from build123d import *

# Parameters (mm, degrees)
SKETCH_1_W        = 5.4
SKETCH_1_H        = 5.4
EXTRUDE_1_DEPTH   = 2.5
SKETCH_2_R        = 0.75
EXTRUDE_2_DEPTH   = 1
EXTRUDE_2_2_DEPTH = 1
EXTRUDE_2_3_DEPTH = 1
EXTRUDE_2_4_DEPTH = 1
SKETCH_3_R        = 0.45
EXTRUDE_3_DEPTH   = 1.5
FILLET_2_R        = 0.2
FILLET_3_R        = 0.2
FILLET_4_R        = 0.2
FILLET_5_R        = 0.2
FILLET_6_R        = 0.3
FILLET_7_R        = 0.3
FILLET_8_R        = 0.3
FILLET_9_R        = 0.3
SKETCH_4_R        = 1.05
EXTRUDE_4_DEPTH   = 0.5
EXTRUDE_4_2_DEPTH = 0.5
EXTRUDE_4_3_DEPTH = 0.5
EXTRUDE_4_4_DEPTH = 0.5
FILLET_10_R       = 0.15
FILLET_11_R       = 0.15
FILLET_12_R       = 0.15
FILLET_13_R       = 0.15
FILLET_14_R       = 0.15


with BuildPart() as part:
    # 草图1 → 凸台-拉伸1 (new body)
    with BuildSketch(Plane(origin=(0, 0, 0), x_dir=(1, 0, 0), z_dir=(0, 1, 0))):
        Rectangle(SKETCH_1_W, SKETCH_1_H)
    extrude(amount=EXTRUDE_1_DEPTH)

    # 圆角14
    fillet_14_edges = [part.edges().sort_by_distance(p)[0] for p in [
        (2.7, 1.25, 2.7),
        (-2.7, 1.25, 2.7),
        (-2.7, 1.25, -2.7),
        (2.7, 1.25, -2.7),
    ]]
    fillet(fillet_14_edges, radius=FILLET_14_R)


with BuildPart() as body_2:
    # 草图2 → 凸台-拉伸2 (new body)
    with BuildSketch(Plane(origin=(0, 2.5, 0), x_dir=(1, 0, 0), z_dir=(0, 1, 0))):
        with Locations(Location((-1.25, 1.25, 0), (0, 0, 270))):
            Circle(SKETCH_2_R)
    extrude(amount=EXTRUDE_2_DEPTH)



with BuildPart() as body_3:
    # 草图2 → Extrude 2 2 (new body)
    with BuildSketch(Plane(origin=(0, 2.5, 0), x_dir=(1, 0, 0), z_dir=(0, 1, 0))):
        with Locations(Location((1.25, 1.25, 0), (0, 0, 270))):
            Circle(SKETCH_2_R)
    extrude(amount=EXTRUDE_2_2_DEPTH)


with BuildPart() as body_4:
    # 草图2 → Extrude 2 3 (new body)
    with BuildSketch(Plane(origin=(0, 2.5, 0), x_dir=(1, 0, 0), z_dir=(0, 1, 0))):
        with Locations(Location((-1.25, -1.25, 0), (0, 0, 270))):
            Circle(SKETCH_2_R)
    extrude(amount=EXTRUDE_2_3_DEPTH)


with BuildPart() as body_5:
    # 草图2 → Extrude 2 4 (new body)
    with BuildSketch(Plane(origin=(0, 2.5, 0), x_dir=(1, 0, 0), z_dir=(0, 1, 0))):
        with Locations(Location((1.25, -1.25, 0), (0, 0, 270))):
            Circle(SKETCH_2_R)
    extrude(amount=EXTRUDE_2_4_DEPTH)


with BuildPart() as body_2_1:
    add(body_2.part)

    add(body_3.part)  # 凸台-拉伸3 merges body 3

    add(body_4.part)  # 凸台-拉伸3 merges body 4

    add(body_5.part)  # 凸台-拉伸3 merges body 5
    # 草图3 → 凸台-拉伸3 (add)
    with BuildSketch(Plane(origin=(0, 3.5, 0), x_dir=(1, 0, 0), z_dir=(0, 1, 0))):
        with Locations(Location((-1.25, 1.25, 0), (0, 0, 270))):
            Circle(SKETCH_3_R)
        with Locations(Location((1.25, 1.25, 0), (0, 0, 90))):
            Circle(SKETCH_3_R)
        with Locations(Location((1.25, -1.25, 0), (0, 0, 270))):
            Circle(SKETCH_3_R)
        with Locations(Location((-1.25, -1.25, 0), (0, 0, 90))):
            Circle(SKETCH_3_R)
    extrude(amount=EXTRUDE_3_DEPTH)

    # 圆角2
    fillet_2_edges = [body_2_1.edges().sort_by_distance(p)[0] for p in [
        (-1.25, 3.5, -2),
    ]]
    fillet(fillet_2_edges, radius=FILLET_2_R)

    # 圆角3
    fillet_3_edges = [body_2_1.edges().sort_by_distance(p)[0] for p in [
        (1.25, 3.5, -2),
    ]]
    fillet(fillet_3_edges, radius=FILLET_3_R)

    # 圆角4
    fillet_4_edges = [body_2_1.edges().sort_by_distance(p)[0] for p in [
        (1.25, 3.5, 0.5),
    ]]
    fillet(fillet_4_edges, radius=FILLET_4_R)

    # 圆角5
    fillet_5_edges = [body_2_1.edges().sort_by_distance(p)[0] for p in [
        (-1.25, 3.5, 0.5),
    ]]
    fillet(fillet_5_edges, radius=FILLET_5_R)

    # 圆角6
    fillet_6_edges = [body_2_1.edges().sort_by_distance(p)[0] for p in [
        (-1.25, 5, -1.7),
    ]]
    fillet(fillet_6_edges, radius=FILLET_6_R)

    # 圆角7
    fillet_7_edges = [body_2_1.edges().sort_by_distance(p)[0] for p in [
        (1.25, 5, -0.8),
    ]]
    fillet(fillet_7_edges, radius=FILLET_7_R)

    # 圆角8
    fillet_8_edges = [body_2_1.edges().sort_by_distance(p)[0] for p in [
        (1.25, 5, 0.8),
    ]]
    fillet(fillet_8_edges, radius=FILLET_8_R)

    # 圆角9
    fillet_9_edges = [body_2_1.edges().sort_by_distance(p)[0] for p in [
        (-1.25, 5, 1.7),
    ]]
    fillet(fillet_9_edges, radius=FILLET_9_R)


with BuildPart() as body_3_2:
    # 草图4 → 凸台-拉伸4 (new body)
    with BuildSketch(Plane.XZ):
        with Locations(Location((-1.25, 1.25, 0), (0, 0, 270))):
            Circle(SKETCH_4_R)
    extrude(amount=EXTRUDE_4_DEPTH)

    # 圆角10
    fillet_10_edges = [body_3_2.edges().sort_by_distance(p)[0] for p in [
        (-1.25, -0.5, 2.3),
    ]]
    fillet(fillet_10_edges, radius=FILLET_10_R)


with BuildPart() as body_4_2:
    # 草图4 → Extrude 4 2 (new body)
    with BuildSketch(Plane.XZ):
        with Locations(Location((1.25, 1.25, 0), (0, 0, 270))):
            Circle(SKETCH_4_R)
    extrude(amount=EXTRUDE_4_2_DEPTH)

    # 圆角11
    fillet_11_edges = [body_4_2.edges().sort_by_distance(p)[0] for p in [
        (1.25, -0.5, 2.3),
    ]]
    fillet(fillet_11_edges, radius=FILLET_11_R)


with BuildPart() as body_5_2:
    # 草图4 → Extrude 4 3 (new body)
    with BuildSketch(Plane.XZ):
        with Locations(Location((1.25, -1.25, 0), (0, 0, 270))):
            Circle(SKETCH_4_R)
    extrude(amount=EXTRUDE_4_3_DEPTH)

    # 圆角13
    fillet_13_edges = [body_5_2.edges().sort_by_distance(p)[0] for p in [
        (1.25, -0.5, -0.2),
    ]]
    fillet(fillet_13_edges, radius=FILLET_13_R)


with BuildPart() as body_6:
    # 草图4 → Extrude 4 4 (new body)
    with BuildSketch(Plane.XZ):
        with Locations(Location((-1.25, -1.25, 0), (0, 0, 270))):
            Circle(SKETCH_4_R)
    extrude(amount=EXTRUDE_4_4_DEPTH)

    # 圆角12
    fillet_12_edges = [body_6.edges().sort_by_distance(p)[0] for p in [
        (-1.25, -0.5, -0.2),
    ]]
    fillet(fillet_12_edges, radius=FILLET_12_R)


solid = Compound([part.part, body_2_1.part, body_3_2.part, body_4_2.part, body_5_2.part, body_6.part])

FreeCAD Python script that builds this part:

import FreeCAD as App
import Part
import Sketcher


def edges_at(feature, points):
    """Names of the edges that pass closest to the given points."""
    edges = feature.Shape.Edges
    near = lambda p: min(range(len(edges)), key=lambda i: edges[i].distToShape(Part.Vertex(*p))[0])
    return sorted({f"Edge{near(p) + 1}" for p in points})

doc = App.newDocument("Part")
body = doc.addObject("PartDesign::Body", "Body")

sketch1 = body.newObject("Sketcher::SketchObject", "Sketch")
sketch1.AttachmentSupport = (doc.getObject("XZ_Plane"), [""])
sketch1.MapMode = "FlatFace"
sketch1.addGeometry([
    Part.LineSegment(App.Vector(-2.7, -2.7, 0), App.Vector(-2.7, 2.7, 0)),
    Part.LineSegment(App.Vector(-2.7, 2.7, 0), App.Vector(2.7, 2.7, 0)),
    Part.LineSegment(App.Vector(2.7, 2.7, 0), App.Vector(2.7, -2.7, 0)),
    Part.LineSegment(App.Vector(2.7, -2.7, 0), App.Vector(-2.7, -2.7, 0)),
], False)
sketch1.addConstraint([
    Sketcher.Constraint("Coincident", 0, 2, 1, 1),
    Sketcher.Constraint("Coincident", 1, 2, 2, 1),
    Sketcher.Constraint("Coincident", 2, 2, 3, 1),
    Sketcher.Constraint("Coincident", 3, 2, 0, 1),
    Sketcher.Constraint("Vertical", 0),
    Sketcher.Constraint("Horizontal", 1),
    Sketcher.Constraint("Vertical", 2),
    Sketcher.Constraint("Horizontal", 3),
    Sketcher.Constraint("Symmetric", 0, 2, 2, 2, -1, 1),
    Sketcher.Constraint("Equal", 3, 0),
    Sketcher.Constraint("DistanceX", 1, 1, 1, 2, 5.4),
])
pad1 = body.newObject("PartDesign::Pad", "Pad")
pad1.Profile = sketch1
pad1.Length = 2.5
pad1.Reversed = True
doc.recompute()

fillet = body.newObject("PartDesign::Fillet", "Fillet")
fillet.Base = (pad1, edges_at(pad1, [
    (2.7, 1.25, 2.7),
    (-2.7, 1.25, 2.7),
    (-2.7, 1.25, -2.7),
    (2.7, 1.25, -2.7),
]))
fillet.Radius = 0.15
body2 = doc.addObject("PartDesign::Body", "Body001")

sketch2 = body2.newObject("Sketcher::SketchObject", "Sketch001")
sketch2.AttachmentSupport = (doc.getObject("XZ_Plane001"), [""])
sketch2.MapMode = "FlatFace"
sketch2.AttachmentOffset = App.Placement(App.Vector(0, 0, -2.5), App.Rotation())
sketch2.addGeometry(Part.Circle(App.Vector(-1.25, -1.25, 0), App.Vector(0, 0, 1), 0.75), False)
sketch2.addConstraint([
    Sketcher.Constraint("Diameter", 0, 1.5),
    Sketcher.Constraint("DistanceX", 0, 3, -1, 1, 1.25),
    Sketcher.Constraint("DistanceY", 0, 3, -1, 1, 1.25),
])
pad2 = body2.newObject("PartDesign::Pad", "Pad001")
pad2.Profile = sketch2
pad2.Length = 1
pad2.Reversed = True
body3 = doc.addObject("PartDesign::Body", "Body002")

sketch3 = body3.newObject("Sketcher::SketchObject", "Sketch002")
sketch3.AttachmentSupport = (doc.getObject("XZ_Plane002"), [""])
sketch3.MapMode = "FlatFace"
sketch3.AttachmentOffset = App.Placement(App.Vector(0, 0, -2.5), App.Rotation())
sketch3.addGeometry(Part.Circle(App.Vector(1.25, -1.25, 0), App.Vector(0, 0, 1), 0.75), False)
sketch3.addConstraint([
    Sketcher.Constraint("Diameter", 0, 1.5),
    Sketcher.Constraint("DistanceX", -1, 1, 0, 3, 1.25),
    Sketcher.Constraint("DistanceY", 0, 3, -1, 1, 1.25),
])
pad3 = body3.newObject("PartDesign::Pad", "Pad002")
pad3.Profile = sketch3
pad3.Length = 1
pad3.Reversed = True
body4 = doc.addObject("PartDesign::Body", "Body003")

sketch4 = body4.newObject("Sketcher::SketchObject", "Sketch003")
sketch4.AttachmentSupport = (doc.getObject("XZ_Plane003"), [""])
sketch4.MapMode = "FlatFace"
sketch4.AttachmentOffset = App.Placement(App.Vector(0, 0, -2.5), App.Rotation())
sketch4.addGeometry(Part.Circle(App.Vector(-1.25, 1.25, 0), App.Vector(0, 0, 1), 0.75), False)
sketch4.addConstraint([
    Sketcher.Constraint("Diameter", 0, 1.5),
    Sketcher.Constraint("DistanceX", 0, 3, -1, 1, 1.25),
    Sketcher.Constraint("DistanceY", -1, 1, 0, 3, 1.25),
])
pad4 = body4.newObject("PartDesign::Pad", "Pad003")
pad4.Profile = sketch4
pad4.Length = 1
pad4.Reversed = True
body5 = doc.addObject("PartDesign::Body", "Body004")

sketch5 = body5.newObject("Sketcher::SketchObject", "Sketch004")
sketch5.AttachmentSupport = (doc.getObject("XZ_Plane004"), [""])
sketch5.MapMode = "FlatFace"
sketch5.AttachmentOffset = App.Placement(App.Vector(0, 0, -2.5), App.Rotation())
sketch5.addGeometry(Part.Circle(App.Vector(1.25, 1.25, 0), App.Vector(0, 0, 1), 0.75), False)
sketch5.addConstraint([
    Sketcher.Constraint("Diameter", 0, 1.5),
    Sketcher.Constraint("DistanceX", -1, 1, 0, 3, 1.25),
    Sketcher.Constraint("DistanceY", -1, 1, 0, 3, 1.25),
])
pad5 = body5.newObject("PartDesign::Pad", "Pad004")
pad5.Profile = sketch5
pad5.Length = 1
pad5.Reversed = True
body2.AllowCompound = True
doc.recompute()

boolean = body2.newObject("PartDesign::Boolean", "Boolean")
boolean.Type = "Fuse"
boolean.addObjects([body3])
doc.recompute()

boolean2 = body2.newObject("PartDesign::Boolean", "Boolean001")
boolean2.Type = "Fuse"
boolean2.addObjects([body4])
doc.recompute()

boolean3 = body2.newObject("PartDesign::Boolean", "Boolean002")
boolean3.Type = "Fuse"
boolean3.addObjects([body5])

sketch6 = body2.newObject("Sketcher::SketchObject", "Sketch005")
sketch6.AttachmentSupport = (doc.getObject("XZ_Plane001"), [""])
sketch6.MapMode = "FlatFace"
sketch6.AttachmentOffset = App.Placement(App.Vector(0, 0, -3.5), App.Rotation())
sketch6.addGeometry([
    Part.Circle(App.Vector(-1.25, -1.25, 0), App.Vector(0, 0, 1), 0.45),
    Part.Circle(App.Vector(1.25, -1.25, 0), App.Vector(0, 0, 1), 0.45),
    Part.Circle(App.Vector(1.25, 1.25, 0), App.Vector(0, 0, 1), 0.45),
    Part.Circle(App.Vector(-1.25, 1.25, 0), App.Vector(0, 0, 1), 0.45),
], False)
sketch6.addConstraint([
    Sketcher.Constraint("Equal", 0, 1),
    Sketcher.Constraint("Equal", 1, 2),
    Sketcher.Constraint("Equal", 2, 3),
    Sketcher.Constraint("Symmetric", 0, 3, 2, 3, -1, 1),
    Sketcher.Constraint("Symmetric", 1, 3, 3, 3, -1, 1),
    Sketcher.Constraint("Symmetric", 0, 3, 1, 3, -2),
    Sketcher.Constraint("Diameter", 0, 0.9),
    Sketcher.Constraint("DistanceX", 0, 3, 1, 3, 2.5),
    Sketcher.Constraint("DistanceY", 1, 3, 2, 3, 2.5),
])
pad6 = body2.newObject("PartDesign::Pad", "Pad005")
pad6.Profile = sketch6
pad6.Length = 1.5
pad6.Reversed = True
doc.recompute()

fillet2 = body2.newObject("PartDesign::Fillet", "Fillet001")
fillet2.Base = (pad6, edges_at(pad6, [(-1.25, 3.5, -2)]))
fillet2.Radius = 0.2
doc.recompute()

fillet3 = body2.newObject("PartDesign::Fillet", "Fillet002")
fillet3.Base = (fillet2, edges_at(fillet2, [(1.25, 3.5, -2)]))
fillet3.Radius = 0.2
doc.recompute()

fillet4 = body2.newObject("PartDesign::Fillet", "Fillet003")
fillet4.Base = (fillet3, edges_at(fillet3, [(1.25, 3.5, 0.5)]))
fillet4.Radius = 0.2
doc.recompute()

fillet5 = body2.newObject("PartDesign::Fillet", "Fillet004")
fillet5.Base = (fillet4, edges_at(fillet4, [(-1.25, 3.5, 0.5)]))
fillet5.Radius = 0.2
doc.recompute()

fillet6 = body2.newObject("PartDesign::Fillet", "Fillet005")
fillet6.Base = (fillet5, edges_at(fillet5, [(-1.25, 5, -1.7)]))
fillet6.Radius = 0.3
doc.recompute()

fillet7 = body2.newObject("PartDesign::Fillet", "Fillet006")
fillet7.Base = (fillet6, edges_at(fillet6, [(1.25, 5, -0.8)]))
fillet7.Radius = 0.3
doc.recompute()

fillet8 = body2.newObject("PartDesign::Fillet", "Fillet007")
fillet8.Base = (fillet7, edges_at(fillet7, [(1.25, 5, 0.8)]))
fillet8.Radius = 0.3
doc.recompute()

fillet9 = body2.newObject("PartDesign::Fillet", "Fillet008")
fillet9.Base = (fillet8, edges_at(fillet8, [(-1.25, 5, 1.7)]))
fillet9.Radius = 0.3
body6 = doc.addObject("PartDesign::Body", "Body005")

sketch7 = body6.newObject("Sketcher::SketchObject", "Sketch006")
sketch7.AttachmentSupport = (doc.getObject("XZ_Plane005"), [""])
sketch7.MapMode = "FlatFace"
sketch7.addGeometry(Part.Circle(App.Vector(-1.25, 1.25, 0), App.Vector(0, 0, 1), 1.05), False)
sketch7.addConstraint([
    Sketcher.Constraint("Diameter", 0, 2.1),
    Sketcher.Constraint("DistanceX", 0, 3, -1, 1, 1.25),
    Sketcher.Constraint("DistanceY", -1, 1, 0, 3, 1.25),
])
pad7 = body6.newObject("PartDesign::Pad", "Pad006")
pad7.Profile = sketch7
pad7.Length = 0.5
doc.recompute()

fillet10 = body6.newObject("PartDesign::Fillet", "Fillet009")
fillet10.Base = (pad7, edges_at(pad7, [(-1.25, -0.5, 2.3)]))
fillet10.Radius = 0.15
body7 = doc.addObject("PartDesign::Body", "Body006")

sketch8 = body7.newObject("Sketcher::SketchObject", "Sketch007")
sketch8.AttachmentSupport = (doc.getObject("XZ_Plane006"), [""])
sketch8.MapMode = "FlatFace"
sketch8.addGeometry(Part.Circle(App.Vector(1.25, 1.25, 0), App.Vector(0, 0, 1), 1.05), False)
sketch8.addConstraint([
    Sketcher.Constraint("Diameter", 0, 2.1),
    Sketcher.Constraint("DistanceX", -1, 1, 0, 3, 1.25),
    Sketcher.Constraint("DistanceY", -1, 1, 0, 3, 1.25),
])
pad8 = body7.newObject("PartDesign::Pad", "Pad007")
pad8.Profile = sketch8
pad8.Length = 0.5
doc.recompute()

fillet11 = body7.newObject("PartDesign::Fillet", "Fillet010")
fillet11.Base = (pad8, edges_at(pad8, [(1.25, -0.5, 2.3)]))
fillet11.Radius = 0.15
body8 = doc.addObject("PartDesign::Body", "Body007")

sketch9 = body8.newObject("Sketcher::SketchObject", "Sketch008")
sketch9.AttachmentSupport = (doc.getObject("XZ_Plane007"), [""])
sketch9.MapMode = "FlatFace"
sketch9.addGeometry(Part.Circle(App.Vector(1.25, -1.25, 0), App.Vector(0, 0, 1), 1.05), False)
sketch9.addConstraint([
    Sketcher.Constraint("Diameter", 0, 2.1),
    Sketcher.Constraint("DistanceX", -1, 1, 0, 3, 1.25),
    Sketcher.Constraint("DistanceY", 0, 3, -1, 1, 1.25),
])
pad9 = body8.newObject("PartDesign::Pad", "Pad008")
pad9.Profile = sketch9
pad9.Length = 0.5
doc.recompute()

fillet12 = body8.newObject("PartDesign::Fillet", "Fillet011")
fillet12.Base = (pad9, edges_at(pad9, [(1.25, -0.5, -0.2)]))
fillet12.Radius = 0.15
body9 = doc.addObject("PartDesign::Body", "Body008")

sketch10 = body9.newObject("Sketcher::SketchObject", "Sketch009")
sketch10.AttachmentSupport = (doc.getObject("XZ_Plane008"), [""])
sketch10.MapMode = "FlatFace"
sketch10.addGeometry(Part.Circle(App.Vector(-1.25, -1.25, 0), App.Vector(0, 0, 1), 1.05), False)
sketch10.addConstraint([
    Sketcher.Constraint("Diameter", 0, 2.1),
    Sketcher.Constraint("DistanceX", 0, 3, -1, 1, 1.25),
    Sketcher.Constraint("DistanceY", 0, 3, -1, 1, 1.25),
])
pad10 = body9.newObject("PartDesign::Pad", "Pad009")
pad10.Profile = sketch10
pad10.Length = 0.5
doc.recompute()

fillet13 = body9.newObject("PartDesign::Fillet", "Fillet012")
fillet13.Base = (pad10, edges_at(pad10, [(-1.25, -0.5, -0.2)]))
fillet13.Radius = 0.15

doc.recompute()
